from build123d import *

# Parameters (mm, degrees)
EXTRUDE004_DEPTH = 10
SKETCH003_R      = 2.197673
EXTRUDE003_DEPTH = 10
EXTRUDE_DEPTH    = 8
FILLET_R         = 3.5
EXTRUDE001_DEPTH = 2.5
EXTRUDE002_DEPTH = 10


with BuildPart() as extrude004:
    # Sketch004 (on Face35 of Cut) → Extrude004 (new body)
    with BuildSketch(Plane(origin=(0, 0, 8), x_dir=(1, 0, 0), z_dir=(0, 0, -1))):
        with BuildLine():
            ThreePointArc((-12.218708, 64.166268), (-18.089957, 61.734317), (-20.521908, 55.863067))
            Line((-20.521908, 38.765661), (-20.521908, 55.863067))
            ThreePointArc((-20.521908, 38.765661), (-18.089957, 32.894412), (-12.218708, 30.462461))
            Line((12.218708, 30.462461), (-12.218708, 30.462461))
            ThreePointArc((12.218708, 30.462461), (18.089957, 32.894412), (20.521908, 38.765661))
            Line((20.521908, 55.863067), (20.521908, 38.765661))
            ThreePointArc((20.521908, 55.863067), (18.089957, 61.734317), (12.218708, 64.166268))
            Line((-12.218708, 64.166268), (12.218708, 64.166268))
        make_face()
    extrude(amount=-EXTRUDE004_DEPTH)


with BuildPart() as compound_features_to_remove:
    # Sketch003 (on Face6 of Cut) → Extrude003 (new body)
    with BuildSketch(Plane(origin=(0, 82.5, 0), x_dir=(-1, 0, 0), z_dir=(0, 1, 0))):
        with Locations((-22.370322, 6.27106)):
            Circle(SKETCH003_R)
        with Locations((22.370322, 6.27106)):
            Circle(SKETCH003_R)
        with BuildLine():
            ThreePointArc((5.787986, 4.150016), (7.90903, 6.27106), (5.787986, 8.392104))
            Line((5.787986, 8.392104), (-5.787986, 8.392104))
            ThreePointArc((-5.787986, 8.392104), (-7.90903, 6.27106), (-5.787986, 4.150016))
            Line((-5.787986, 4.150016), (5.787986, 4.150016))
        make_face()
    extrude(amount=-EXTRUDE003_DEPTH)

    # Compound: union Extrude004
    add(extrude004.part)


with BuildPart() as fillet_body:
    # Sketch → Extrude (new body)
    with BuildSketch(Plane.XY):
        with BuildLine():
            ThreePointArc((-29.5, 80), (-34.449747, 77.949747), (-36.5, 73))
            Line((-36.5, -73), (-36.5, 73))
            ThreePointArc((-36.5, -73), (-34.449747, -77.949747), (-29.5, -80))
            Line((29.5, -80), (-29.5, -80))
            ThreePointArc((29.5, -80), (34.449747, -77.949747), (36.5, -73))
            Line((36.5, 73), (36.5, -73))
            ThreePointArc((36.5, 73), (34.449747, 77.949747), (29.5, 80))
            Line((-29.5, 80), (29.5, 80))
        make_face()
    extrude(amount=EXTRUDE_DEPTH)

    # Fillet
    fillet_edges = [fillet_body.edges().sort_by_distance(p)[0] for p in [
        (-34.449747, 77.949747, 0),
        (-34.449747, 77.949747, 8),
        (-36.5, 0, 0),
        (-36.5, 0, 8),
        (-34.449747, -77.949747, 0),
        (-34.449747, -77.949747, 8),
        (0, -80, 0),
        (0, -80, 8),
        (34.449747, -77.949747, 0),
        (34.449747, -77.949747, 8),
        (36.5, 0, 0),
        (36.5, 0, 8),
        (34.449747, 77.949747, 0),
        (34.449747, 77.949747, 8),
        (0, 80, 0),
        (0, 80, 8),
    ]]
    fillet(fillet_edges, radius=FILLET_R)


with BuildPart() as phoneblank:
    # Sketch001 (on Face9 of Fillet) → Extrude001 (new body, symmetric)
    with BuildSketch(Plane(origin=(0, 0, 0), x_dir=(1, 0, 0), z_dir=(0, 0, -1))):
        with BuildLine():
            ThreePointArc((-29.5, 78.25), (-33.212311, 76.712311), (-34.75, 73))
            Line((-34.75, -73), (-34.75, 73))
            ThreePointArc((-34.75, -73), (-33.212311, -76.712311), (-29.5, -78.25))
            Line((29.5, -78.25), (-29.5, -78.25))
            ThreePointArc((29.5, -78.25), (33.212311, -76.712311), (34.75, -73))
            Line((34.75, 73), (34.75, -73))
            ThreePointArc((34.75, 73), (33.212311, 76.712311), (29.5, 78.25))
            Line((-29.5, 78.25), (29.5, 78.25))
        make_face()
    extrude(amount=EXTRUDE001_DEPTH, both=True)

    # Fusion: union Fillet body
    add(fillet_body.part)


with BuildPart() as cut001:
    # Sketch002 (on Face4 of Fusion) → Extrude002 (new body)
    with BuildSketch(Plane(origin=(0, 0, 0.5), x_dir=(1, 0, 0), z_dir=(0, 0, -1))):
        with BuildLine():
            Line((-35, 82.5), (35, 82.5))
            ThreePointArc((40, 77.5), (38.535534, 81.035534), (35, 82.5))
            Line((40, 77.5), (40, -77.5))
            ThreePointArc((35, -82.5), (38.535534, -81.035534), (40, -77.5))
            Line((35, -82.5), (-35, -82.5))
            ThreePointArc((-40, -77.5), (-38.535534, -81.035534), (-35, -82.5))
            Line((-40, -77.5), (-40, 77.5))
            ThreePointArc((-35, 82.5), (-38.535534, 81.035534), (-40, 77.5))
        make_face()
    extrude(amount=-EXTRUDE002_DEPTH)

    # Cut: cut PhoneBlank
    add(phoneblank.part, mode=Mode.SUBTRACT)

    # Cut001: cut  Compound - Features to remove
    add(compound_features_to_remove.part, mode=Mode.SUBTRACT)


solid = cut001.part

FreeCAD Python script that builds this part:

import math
import FreeCAD as App
import Part
import Sketcher

V = App.Vector
Q = App.Units.Quantity


def edges_at(feature, points):
    """Names of the edges that pass closest to the given points."""
    edges = feature.Shape.Edges
    near = lambda p: min(range(len(edges)), key=lambda i: edges[i].distToShape(Part.Vertex(*p))[0])
    return sorted({f"Edge{near(p) + 1}" for p in points})

doc = App.newDocument("Part")
body = doc.addObject("PartDesign::Body", "Body")

# Sketch on XY plane
sketch1 = doc.addObject("Sketcher::SketchObject", "Sketch")
body.addObject(sketch1)
sketch1.AttachmentSupport = (doc.XY_Plane, [""])
sketch1.MapMode = "FlatFace"
sketch1.AttachmentOffset = App.Placement(V(0, 0, 8), App.Rotation())
sketch1.addGeometry(Part.ArcOfCircle(Part.Circle(V(-12, -56, 0), V(0, 0, 1), 8), math.radians(180), math.radians(270)), False)
sketch1.addGeometry(Part.LineSegment(V(-21, -56, 0), V(-21, -39, 0)), False)
sketch1.addGeometry(Part.ArcOfCircle(Part.Circle(V(-12, -39, 0), V(0, 0, 1), 8), math.radians(90), math.radians(180)), False)
sketch1.addGeometry(Part.LineSegment(V(-12, -30, 0), V(12, -30, 0)), False)
sketch1.addGeometry(Part.ArcOfCircle(Part.Circle(V(12, -39, 0), V(0, 0, 1), 8), math.radians(0), math.radians(90)), False)
sketch1.addGeometry(Part.LineSegment(V(21, -39, 0), V(21, -56, 0)), False)
sketch1.addGeometry(Part.ArcOfCircle(Part.Circle(V(12, -56, 0), V(0, 0, 1), 8), math.radians(-90), math.radians(0)), False)
sketch1.addGeometry(Part.LineSegment(V(12, -64, 0), V(-12, -64, 0)), False)
sketch1.addConstraint(Sketcher.Constraint("Tangent", 0, 1, 1, 1))
sketch1.addConstraint(Sketcher.Constraint("Tangent", 1, 2, 2, 2))
sketch1.addConstraint(Sketcher.Constraint("Tangent", 2, 1, 3, 1))
sketch1.addConstraint(Sketcher.Constraint("Tangent", 3, 2, 4, 2))
sketch1.addConstraint(Sketcher.Constraint("Tangent", 4, 1, 5, 1))
sketch1.addConstraint(Sketcher.Constraint("Tangent", 5, 2, 6, 2))
sketch1.addConstraint(Sketcher.Constraint("Tangent", 6, 1, 7, 1))
sketch1.addConstraint(Sketcher.Constraint("Tangent", 7, 2, 0, 2))
sketch1.addConstraint(Sketcher.Constraint("Vertical", 1))
sketch1.addConstraint(Sketcher.Constraint("Horizontal", 3))
sketch1.addConstraint(Sketcher.Constraint("Vertical", 5))
sketch1.addConstraint(Sketcher.Constraint("Horizontal", 7))
sketch1.addConstraint(Sketcher.Constraint("Equal", 0, 2))
sketch1.addConstraint(Sketcher.Constraint("Equal", 2, 4))
sketch1.addConstraint(Sketcher.Constraint("Equal", 4, 6))
sketch1.addConstraint(Sketcher.Constraint("Radius", 0, Q("8.3032 mm")))
sketch1.addConstraint(Sketcher.Constraint("DistanceX", 3, 1, 3, 2, Q("24.437416 mm")))
sketch1.addConstraint(Sketcher.Constraint("DistanceY", 1, 1, 1, 2, Q("17.097406 mm")))
sketch1.addConstraint(Sketcher.Constraint("DistanceY", 2, 3, -1, 1, Q("38.765661 mm")))
sketch1.addConstraint(Sketcher.Constraint("DistanceX", 1, 2, -1, 1, Q("20.521908 mm")))
pad1 = doc.addObject("PartDesign::Pad", "Pad")
body.addObject(pad1)
pad1.Profile = sketch1
pad1.Length = 10
body2 = doc.addObject("PartDesign::Body", "Body001")
body2.AllowCompound = True

# Sketch on XZ plane
sketch2 = doc.addObject("Sketcher::SketchObject", "Sketch001")
body2.addObject(sketch2)
sketch2.AttachmentSupport = (doc.getObject("XZ_Plane001"), [""])
sketch2.MapMode = "FlatFace"
sketch2.AttachmentOffset = App.Placement(V(0, 0, -82.5), App.Rotation())
sketch2.addGeometry(Part.Circle(V(22.4, 6.3, 0), V(0, 0, 1), 2.2), False)
sketch2.addGeometry(Part.Circle(V(-22.4, 6.3, 0), V(0, 0, 1), 2.2), False)
sketch2.addGeometry(Part.ArcOfCircle(Part.Circle(V(-5.8, 6.3, 0), V(0, 0, 1), 2.1), math.radians(90), math.radians(270)), False)
sketch2.addGeometry(Part.LineSegment(V(-5.8, 8.4, 0), V(5.8, 8.4, 0)), False)
sketch2.addGeometry(Part.ArcOfCircle(Part.Circle(V(5.8, 6.3, 0), V(0, 0, 1), 2.1), math.radians(-90), math.radians(90)), False)
sketch2.addGeometry(Part.LineSegment(V(5.8, 4.2, 0), V(-5.8, 4.2, 0)), False)
sketch2.addConstraint(Sketcher.Constraint("Tangent", 2, 1, 3, 1))
sketch2.addConstraint(Sketcher.Constraint("Tangent", 3, 2, 4, 2))
sketch2.addConstraint(Sketcher.Constraint("Tangent", 4, 1, 5, 1))
sketch2.addConstraint(Sketcher.Constraint("Tangent", 5, 2, 2, 2))
sketch2.addConstraint(Sketcher.Constraint("Horizontal", 3))
sketch2.addConstraint(Sketcher.Constraint("Horizontal", 5))
sketch2.addConstraint(Sketcher.Constraint("Equal", 0, 1))
sketch2.addConstraint(Sketcher.Constraint("Symmetric", 0, 3, 1, 3, -2))
sketch2.addConstraint(Sketcher.Constraint("Horizontal", 1, 3, 2, 3))
sketch2.addConstraint(Sketcher.Constraint("Diameter", 0, Q("4.395346 mm")))
sketch2.addConstraint(Sketcher.Constraint("Radius", 2, Q("2.121044 mm")))
sketch2.addConstraint(Sketcher.Constraint("DistanceX", 3, 1, 3, 2, Q("11.575972 mm")))
sketch2.addConstraint(Sketcher.Constraint("DistanceY", -1, 1, 0, 3, Q("6.27106 mm")))
sketch2.addConstraint(Sketcher.Constraint("DistanceX", 2, 3, 0, 3, Q("28.158308 mm")))
sketch2.addConstraint(Sketcher.Constraint("DistanceX", 1, 3, 4, 3, Q("28.158308 mm")))
pad2 = doc.addObject("PartDesign::Pad", "Pad001")
body2.addObject(pad2)
pad2.Profile = sketch2
pad2.Length = 10
doc.recompute()

boolean = doc.addObject("PartDesign::Boolean", "Boolean")
body2.addObject(boolean)
boolean.Type = "Fuse"
boolean.addObjects([body])
body3 = doc.addObject("PartDesign::Body", "Body002")

# Sketch on XY plane
sketch3 = doc.addObject("Sketcher::SketchObject", "Sketch002")
body3.addObject(sketch3)
sketch3.AttachmentSupport = (doc.getObject("XY_Plane002"), [""])
sketch3.MapMode = "FlatFace"
sketch3.addGeometry(Part.ArcOfCircle(Part.Circle(V(-29, 73, 0), V(0, 0, 1), 7), math.radians(90), math.radians(180)), False)
sketch3.addGeometry(Part.LineSegment(V(-36, 73, 0), V(-36, -73, 0)), False)
sketch3.addGeometry(Part.ArcOfCircle(Part.Circle(V(-29, -73, 0), V(0, 0, 1), 7), math.radians(-180), math.radians(-90)), False)
sketch3.addGeometry(Part.LineSegment(V(-30, -80, 0), V(30, -80, 0)), False)
sketch3.addGeometry(Part.ArcOfCircle(Part.Circle(V(29, -73, 0), V(0, 0, 1), 7), math.radians(-90), math.radians(0)), False)
sketch3.addGeometry(Part.LineSegment(V(36, -73, 0), V(36, 73, 0)), False)
sketch3.addGeometry(Part.ArcOfCircle(Part.Circle(V(29, 73, 0), V(0, 0, 1), 7), math.radians(0), math.radians(90)), False)
sketch3.addGeometry(Part.LineSegment(V(30, 80, 0), V(-30, 80, 0)), False)
sketch3.addConstraint(Sketcher.Constraint("Tangent", 0, 2, 1, 1))
sketch3.addConstraint(Sketcher.Constraint("Tangent", 1, 2, 2, 1))
sketch3.addConstraint(Sketcher.Constraint("Tangent", 2, 2, 3, 1))
sketch3.addConstraint(Sketcher.Constraint("Tangent", 3, 2, 4, 1))
sketch3.addConstraint(Sketcher.Constraint("Tangent", 4, 2, 5, 1))
sketch3.addConstraint(Sketcher.Constraint("Tangent", 5, 2, 6, 1))
sketch3.addConstraint(Sketcher.Constraint("Tangent", 6, 2, 7, 1))
sketch3.addConstraint(Sketcher.Constraint("Tangent", 7, 2, 0, 1))
sketch3.addConstraint(Sketcher.Constraint("Vertical", 1))
sketch3.addConstraint(Sketcher.Constraint("Horizontal", 3))
sketch3.addConstraint(Sketcher.Constraint("Vertical", 5))
sketch3.addConstraint(Sketcher.Constraint("Horizontal", 7))
sketch3.addConstraint(Sketcher.Constraint("Equal", 0, 2))
sketch3.addConstraint(Sketcher.Constraint("Equal", 2, 4))
sketch3.addConstraint(Sketcher.Constraint("Equal", 4, 6))
sketch3.addConstraint(Sketcher.Constraint("Symmetric", 0, 3, 4, 3, -1, 1))
sketch3.addConstraint(Sketcher.Constraint("Radius", 0, Q("7.000002 mm")))
sketch3.addConstraint(Sketcher.Constraint("DistanceX", 3, 1, 3, 2, Q("59 mm")))
sketch3.addConstraint(Sketcher.Constraint("DistanceY", 1, 2, 1, 1, Q("146 mm")))
pad3 = doc.addObject("PartDesign::Pad", "Pad002")
body3.addObject(pad3)
pad3.Profile = sketch3
pad3.Length = 8
doc.recompute()

fillet = doc.addObject("PartDesign::Fillet", "Fillet")
body3.addObject(fillet)
fillet.Base = (pad3, edges_at(pad3, [
    (-34.45, 77.95, 0),
    (-34.45, 77.95, 8),
    (-36.5, 0, 0),
    (-36.5, 0, 8),
    (-34.45, -77.95, 0),
    (-34.45, -77.95, 8),
    (0, -80, 0),
    (0, -80, 8),
    (34.45, -77.95, 0),
    (34.45, -77.95, 8),
    (36.5, 0, 0),
    (36.5, 0, 8),
    (34.45, 77.95, 0),
    (34.45, 77.95, 8),
    (0, 80, 0),
    (0, 80, 8),
]))
fillet.Radius = 3.5
body4 = doc.addObject("PartDesign::Body", "Body003")

# Sketch on XY plane
sketch4 = doc.addObject("Sketcher::SketchObject", "Sketch003")
body4.addObject(sketch4)
sketch4.AttachmentSupport = (doc.getObject("XY_Plane003"), [""])
sketch4.MapMode = "FlatFace"
sketch4.addGeometry(Part.ArcOfCircle(Part.Circle(V(-30, -73, 0), V(0, 0, 1), 5), math.radians(180), math.radians(270)), False)
sketch4.addGeometry(Part.LineSegment(V(-35, -73, 0), V(-35, 73, 0)), False)
sketch4.addGeometry(Part.ArcOfCircle(Part.Circle(V(-30, 73, 0), V(0, 0, 1), 5), math.radians(90), math.radians(180)), False)
sketch4.addGeometry(Part.LineSegment(V(-30, 78, 0), V(30, 78, 0)), False)
sketch4.addGeometry(Part.ArcOfCircle(Part.Circle(V(30, 73, 0), V(0, 0, 1), 5), math.radians(0), math.radians(90)), False)
sketch4.addGeometry(Part.LineSegment(V(35, 73, 0), V(35, -73, 0)), False)
sketch4.addGeometry(Part.ArcOfCircle(Part.Circle(V(30, -73, 0), V(0, 0, 1), 5), math.radians(-90), math.radians(0)), False)
sketch4.addGeometry(Part.LineSegment(V(30, -78, 0), V(-30, -78, 0)), False)
sketch4.addConstraint(Sketcher.Constraint("Tangent", 0, 1, 1, 1))
sketch4.addConstraint(Sketcher.Constraint("Tangent", 1, 2, 2, 2))
sketch4.addConstraint(Sketcher.Constraint("Tangent", 2, 1, 3, 1))
sketch4.addConstraint(Sketcher.Constraint("Tangent", 3, 2, 4, 2))
sketch4.addConstraint(Sketcher.Constraint("Tangent", 4, 1, 5, 1))
sketch4.addConstraint(Sketcher.Constraint("Tangent", 5, 2, 6, 2))
sketch4.addConstraint(Sketcher.Constraint("Tangent", 6, 1, 7, 1))
sketch4.addConstraint(Sketcher.Constraint("Tangent", 7, 2, 0, 2))
sketch4.addConstraint(Sketcher.Constraint("Vertical", 1))
sketch4.addConstraint(Sketcher.Constraint("Horizontal", 3))
sketch4.addConstraint(Sketcher.Constraint("Vertical", 5))
sketch4.addConstraint(Sketcher.Constraint("Horizontal", 7))
sketch4.addConstraint(Sketcher.Constraint("Equal", 0, 2))
sketch4.addConstraint(Sketcher.Constraint("Equal", 2, 4))
sketch4.addConstraint(Sketcher.Constraint("Equal", 4, 6))
sketch4.addConstraint(Sketcher.Constraint("Symmetric", 0, 3, 4, 3, -1, 1))
sketch4.addConstraint(Sketcher.Constraint("DistanceX", 3, 1, 3, 2, Q("59 mm")))
sketch4.addConstraint(Sketcher.Constraint("DistanceY", 1, 1, 1, 2, Q("146 mm")))
sketch4.addConstraint(Sketcher.Constraint("Radius", 0, Q("5.249999 mm")))
pad4 = doc.addObject("PartDesign::Pad", "Pad003")
body4.addObject(pad4)
pad4.Profile = sketch4
pad4.Length = 5
pad4.Midplane = True
doc.recompute()

boolean2 = doc.addObject("PartDesign::Boolean", "Boolean001")
body4.addObject(boolean2)
boolean2.Type = "Fuse"
boolean2.addObjects([body3])
body5 = doc.addObject("PartDesign::Body", "Body004")

# Sketch on XY plane
sketch5 = doc.addObject("Sketcher::SketchObject", "Sketch004")
body5.addObject(sketch5)
sketch5.AttachmentSupport = (doc.getObject("XY_Plane004"), [""])
sketch5.MapMode = "FlatFace"
sketch5.AttachmentOffset = App.Placement(V(0, 0, 0.5), App.Rotation())
sketch5.addGeometry(Part.LineSegment(V(35, -82.5, 0), V(-35, -82.5, 0)), False)
sketch5.addGeometry(Part.ArcOfCircle(Part.Circle(V(-35, -77.5, 0), V(0, 0, 1), 5), math.radians(180), math.radians(270)), False)
sketch5.addGeometry(Part.LineSegment(V(-40, -77.5, 0), V(-40, 77.5, 0)), False)
sketch5.addGeometry(Part.ArcOfCircle(Part.Circle(V(-35, 77.5, 0), V(0, 0, 1), 5), math.radians(90), math.radians(180)), False)
sketch5.addGeometry(Part.LineSegment(V(-35, 82.5, 0), V(35, 82.5, 0)), False)
sketch5.addGeometry(Part.ArcOfCircle(Part.Circle(V(35, 77.5, 0), V(0, 0, 1), 5), math.radians(0), math.radians(90)), False)
sketch5.addGeometry(Part.LineSegment(V(40, 77.5, 0), V(40, -77.5, 0)), False)
sketch5.addGeometry(Part.ArcOfCircle(Part.Circle(V(35, -77.5, 0), V(0, 0, 1), 5), math.radians(-90), math.radians(0)), False)
sketch5.addConstraint(Sketcher.Constraint("Tangent", 0, 2, 1, 2))
sketch5.addConstraint(Sketcher.Constraint("Tangent", 1, 1, 2, 1))
sketch5.addConstraint(Sketcher.Constraint("Tangent", 2, 2, 3, 2))
sketch5.addConstraint(Sketcher.Constraint("Tangent", 3, 1, 4, 1))
sketch5.addConstraint(Sketcher.Constraint("Tangent", 4, 2, 5, 2))
sketch5.addConstraint(Sketcher.Constraint("Tangent", 5, 1, 6, 1))
sketch5.addConstraint(Sketcher.Constraint("Tangent", 6, 2, 7, 2))
sketch5.addConstraint(Sketcher.Constraint("Tangent", 7, 1, 0, 1))
sketch5.addConstraint(Sketcher.Constraint("Horizontal", 0))
sketch5.addConstraint(Sketcher.Constraint("Vertical", 2))
sketch5.addConstraint(Sketcher.Constraint("Horizontal", 4))
sketch5.addConstraint(Sketcher.Constraint("Vertical", 6))
sketch5.addConstraint(Sketcher.Constraint("Equal", 1, 3))
sketch5.addConstraint(Sketcher.Constraint("Equal", 3, 5))
sketch5.addConstraint(Sketcher.Constraint("Equal", 5, 7))
sketch5.addConstraint(Sketcher.Constraint("Symmetric", 1, 3, 5, 3, -1, 1))
sketch5.addConstraint(Sketcher.Constraint("Radius", 1, Q("5 mm")))
sketch5.addConstraint(Sketcher.Constraint("DistanceX", 0, 2, 0, 1, Q("70 mm")))
sketch5.addConstraint(Sketcher.Constraint("DistanceY", 2, 1, 2, 2, Q("155 mm")))
pad5 = doc.addObject("PartDesign::Pad", "Pad004")
body5.addObject(pad5)
pad5.Profile = sketch5
pad5.Length = 10
doc.recompute()

boolean3 = doc.addObject("PartDesign::Boolean", "Boolean002")
body5.addObject(boolean3)
boolean3.Type = "Cut"
boolean3.addObjects([body4])
doc.recompute()

boolean4 = doc.addObject("PartDesign::Boolean", "Boolean003")
body5.addObject(boolean4)
boolean4.Type = "Cut"
boolean4.addObjects([body2])

doc.recompute()
